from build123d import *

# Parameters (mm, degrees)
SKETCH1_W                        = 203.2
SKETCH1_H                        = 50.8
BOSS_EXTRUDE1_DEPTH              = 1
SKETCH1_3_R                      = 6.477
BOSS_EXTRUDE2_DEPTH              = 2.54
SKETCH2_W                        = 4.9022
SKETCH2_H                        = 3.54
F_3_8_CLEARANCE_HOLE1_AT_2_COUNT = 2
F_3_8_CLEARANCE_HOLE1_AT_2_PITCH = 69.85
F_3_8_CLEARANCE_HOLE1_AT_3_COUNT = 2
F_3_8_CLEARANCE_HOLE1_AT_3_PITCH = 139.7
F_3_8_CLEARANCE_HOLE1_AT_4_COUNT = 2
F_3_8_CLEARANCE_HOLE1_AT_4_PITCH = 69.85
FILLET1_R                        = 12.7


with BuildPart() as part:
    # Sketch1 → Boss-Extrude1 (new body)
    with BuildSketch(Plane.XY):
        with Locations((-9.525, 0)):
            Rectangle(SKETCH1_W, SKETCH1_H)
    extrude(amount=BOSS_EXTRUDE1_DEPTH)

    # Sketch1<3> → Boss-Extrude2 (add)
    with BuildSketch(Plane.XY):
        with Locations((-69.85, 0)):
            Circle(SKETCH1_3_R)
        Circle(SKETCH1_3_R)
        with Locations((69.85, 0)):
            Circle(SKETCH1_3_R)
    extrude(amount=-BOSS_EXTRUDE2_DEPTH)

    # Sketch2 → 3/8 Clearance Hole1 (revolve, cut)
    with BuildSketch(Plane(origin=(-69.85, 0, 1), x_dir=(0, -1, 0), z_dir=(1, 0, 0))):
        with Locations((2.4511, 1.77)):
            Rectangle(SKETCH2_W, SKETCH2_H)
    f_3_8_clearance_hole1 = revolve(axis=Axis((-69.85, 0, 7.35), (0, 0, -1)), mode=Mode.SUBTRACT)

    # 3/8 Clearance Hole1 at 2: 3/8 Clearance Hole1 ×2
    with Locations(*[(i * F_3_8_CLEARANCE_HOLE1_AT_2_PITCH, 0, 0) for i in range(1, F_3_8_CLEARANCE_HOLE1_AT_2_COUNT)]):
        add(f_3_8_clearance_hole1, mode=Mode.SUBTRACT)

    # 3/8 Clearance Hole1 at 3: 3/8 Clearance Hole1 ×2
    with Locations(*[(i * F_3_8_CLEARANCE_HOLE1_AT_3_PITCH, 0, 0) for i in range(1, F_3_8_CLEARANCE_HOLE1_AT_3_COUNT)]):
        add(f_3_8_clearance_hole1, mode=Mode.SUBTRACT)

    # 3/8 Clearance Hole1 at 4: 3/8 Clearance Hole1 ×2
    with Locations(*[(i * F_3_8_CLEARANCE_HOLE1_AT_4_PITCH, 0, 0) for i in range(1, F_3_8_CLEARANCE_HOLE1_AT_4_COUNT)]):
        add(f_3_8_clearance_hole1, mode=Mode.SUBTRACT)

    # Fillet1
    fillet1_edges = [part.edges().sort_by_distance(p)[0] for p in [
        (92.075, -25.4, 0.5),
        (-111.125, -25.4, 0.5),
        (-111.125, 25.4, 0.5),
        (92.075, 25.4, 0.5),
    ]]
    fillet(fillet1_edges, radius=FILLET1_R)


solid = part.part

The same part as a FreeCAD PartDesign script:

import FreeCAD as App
import Part
import Sketcher
from FreeCAD import Vector
Q = App.Units.Quantity


def edges_at(feature, points):
    """Names of the edges that pass closest to the given points."""
    edges = feature.Shape.Edges
    near = lambda p: min(range(len(edges)), key=lambda i: edges[i].distToShape(Part.Vertex(*p))[0])
    return sorted({f"Edge{near(p) + 1}" for p in points})


def add_polygon(sketch, points):
    """Adds a closed chain of lines whose ends are joined by coincident constraints."""
    first, n = sketch.GeometryCount, len(points)
    for a, b in zip(points, points[1:] + points[:1]):
        sketch.addGeometry(Part.LineSegment(App.Vector(*a, 0), App.Vector(*b, 0)), False)
    for i in range(n):
        sketch.addConstraint(Sketcher.Constraint("Coincident", first + i, 2, first + (i + 1) % n, 1))

doc = App.newDocument("Part")
params = doc.addObject("Spreadsheet::Sheet", "Params")
for row, (alias, value) in enumerate([
    ("sketch1_width", "8 in"),
    ("sketch1_height", "2 in"),
    ("pad1_length", "1 mm"),
    ("sketch2_diameter", "0.51 in"),
    ("pad2_length", "0.1 in"),
    ("sketch3_width", "0.193 in"),
    ("groove_angle", "360 deg"),
    ("linearpattern_pitch", "2.75 in"),
    ("linearpattern2_pitch", "5.5 in"),
    ("linearpattern3_pitch", "2.75 in"),
    ("fillet_radius", "0.5 in"),
], start=1):
    params.set(f"A{row}", alias)
    params.set(f"B{row}", "=" + value)
    params.setAlias(f"B{row}", alias)

body = doc.addObject("PartDesign::Body", "Body")

sketch1 = body.newObject("Sketcher::SketchObject", "Sketch")
sketch1.AttachmentSupport = (doc.getObject("XY_Plane"), [""])
sketch1.MapMode = "FlatFace"
add_polygon(sketch1, [(-111, 25), (-111, -25), (92, -25), (92, 25)])
sketch1.addConstraint(Sketcher.Constraint("Vertical", 0))
sketch1.addConstraint(Sketcher.Constraint("Horizontal", 1))
sketch1.addConstraint(Sketcher.Constraint("Vertical", 2))
sketch1.addConstraint(Sketcher.Constraint("Horizontal", 3))
sketch1.addConstraint(Sketcher.Constraint("DistanceX", 1, 1, 1, 2, Q("8 in")))
sketch1.addConstraint(Sketcher.Constraint("DistanceY", 0, 2, 0, 1, Q("2 in")))
sketch1.addConstraint(Sketcher.Constraint("DistanceY", 0, 2, -1, 1, Q("1 in")))
sketch1.addConstraint(Sketcher.Constraint("DistanceX", 0, 2, -1, 1, Q("4.375 in")))
sketch1.setExpression("Constraints[8]", "Params.sketch1_width")
sketch1.setExpression("Constraints[9]", "Params.sketch1_height")
pad1 = body.newObject("PartDesign::Pad", "Pad")
pad1.Profile = sketch1
pad1.setExpression("Length", "Params.pad1_length")

sketch2 = body.newObject("Sketcher::SketchObject", "Sketch001")
sketch2.AttachmentSupport = (doc.getObject("XY_Plane"), [""])
sketch2.MapMode = "FlatFace"
sketch2.addGeometry(Part.Circle(Vector(-70, 0, 0), Vector(0, 0, 1), 6), False)
sketch2.addGeometry(Part.Circle(Vector(0, 0, 0), Vector(0, 0, 1), 6), False)
sketch2.addGeometry(Part.Circle(Vector(70, 0, 0), Vector(0, 0, 1), 6), False)
sketch2.addConstraint(Sketcher.Constraint("Coincident", 1, 3, -1, 1))
sketch2.addConstraint(Sketcher.Constraint("Equal", 0, 1))
sketch2.addConstraint(Sketcher.Constraint("Equal", 1, 2))
sketch2.addConstraint(Sketcher.Constraint("Symmetric", 0, 3, 2, 3, -1, 1))
sketch2.addConstraint(Sketcher.Constraint("PointOnObject", 0, 3, -1))
sketch2.addConstraint(Sketcher.Constraint("Diameter", 0, Q("0.51 in")))
sketch2.addConstraint(Sketcher.Constraint("DistanceX", 0, 3, 2, 3, Q("5.5 in")))
sketch2.setExpression("Constraints[5]", "Params.sketch2_diameter")
pad2 = body.newObject("PartDesign::Pad", "Pad001")
pad2.Profile = sketch2
pad2.setExpression("Length", "Params.pad2_length")
pad2.Reversed = True

sketch3 = body.newObject("Sketcher::SketchObject", "Sketch002")
sketch3.AttachmentSupport = (doc.getObject("YZ_Plane"), [""])
sketch3.MapMode = "FlatFace"
sketch3.AttachmentOffset = App.Placement(Vector(0, 0, -2.75 * 25.4), App.Rotation())
add_polygon(sketch3, [(0, -2.5), (0, 1), (-4.9, 1), (-4.9, -2.5)])
sketch3.addConstraint(Sketcher.Constraint("Vertical", 0))
sketch3.addConstraint(Sketcher.Constraint("Horizontal", 1))
sketch3.addConstraint(Sketcher.Constraint("Vertical", 2))
sketch3.addConstraint(Sketcher.Constraint("Horizontal", 3))
sketch3.addConstraint(Sketcher.Constraint("PointOnObject", 0, 2, -2))
sketch3.addConstraint(Sketcher.Constraint("DistanceY", 2, 2, -1, 1, Q("0.1 in")))
sketch3.addConstraint(Sketcher.Constraint("DistanceX", 1, 2, 1, 1, Q("0.193 in")))
sketch3.addConstraint(Sketcher.Constraint("DistanceY", 0, 1, 0, 2, Q("3.54 mm")))
sketch3.setExpression("Constraints[10]", "Params.sketch3_width")
groove = body.newObject("PartDesign::Groove", "Groove")
groove.Profile = sketch3
groove.ReferenceAxis = (sketch3, ["V_Axis"])
groove.setExpression("Angle", "Params.groove_angle")
doc.recompute()

linearpattern = body.newObject("PartDesign::LinearPattern", "LinearPattern")
linearpattern.Originals = [groove]
linearpattern.Direction = (doc.getObject("X_Axis"), [""])
linearpattern.Mode = "offset"
linearpattern.setExpression("Offset", "Params.linearpattern_pitch")
linearpattern.Occurrences = 2
body.Tip = linearpattern
doc.recompute()

linearpattern2 = body.newObject("PartDesign::LinearPattern", "LinearPattern001")
linearpattern2.Originals = [groove]
linearpattern2.Direction = (doc.getObject("X_Axis"), [""])
linearpattern2.Mode = "offset"
linearpattern2.setExpression("Offset", "Params.linearpattern2_pitch")
linearpattern2.Occurrences = 2
body.Tip = linearpattern2
doc.recompute()

linearpattern3 = body.newObject("PartDesign::LinearPattern", "LinearPattern002")
linearpattern3.Originals = [groove]
linearpattern3.Direction = (doc.getObject("X_Axis"), [""])
linearpattern3.Mode = "offset"
linearpattern3.setExpression("Offset", "Params.linearpattern3_pitch")
linearpattern3.Occurrences = 2
body.Tip = linearpattern3
doc.recompute()

fillet = body.newObject("PartDesign::Fillet", "Fillet")
fillet.Base = (linearpattern3, edges_at(linearpattern3, [
    (92.075, -25.4, 0.5),
    (-111.125, -25.4, 0.5),
    (-111.125, 25.4, 0.5),
    (92.075, 25.4, 0.5),
]))
fillet.setExpression("Radius", "Params.fillet_radius")

doc.recompute()
